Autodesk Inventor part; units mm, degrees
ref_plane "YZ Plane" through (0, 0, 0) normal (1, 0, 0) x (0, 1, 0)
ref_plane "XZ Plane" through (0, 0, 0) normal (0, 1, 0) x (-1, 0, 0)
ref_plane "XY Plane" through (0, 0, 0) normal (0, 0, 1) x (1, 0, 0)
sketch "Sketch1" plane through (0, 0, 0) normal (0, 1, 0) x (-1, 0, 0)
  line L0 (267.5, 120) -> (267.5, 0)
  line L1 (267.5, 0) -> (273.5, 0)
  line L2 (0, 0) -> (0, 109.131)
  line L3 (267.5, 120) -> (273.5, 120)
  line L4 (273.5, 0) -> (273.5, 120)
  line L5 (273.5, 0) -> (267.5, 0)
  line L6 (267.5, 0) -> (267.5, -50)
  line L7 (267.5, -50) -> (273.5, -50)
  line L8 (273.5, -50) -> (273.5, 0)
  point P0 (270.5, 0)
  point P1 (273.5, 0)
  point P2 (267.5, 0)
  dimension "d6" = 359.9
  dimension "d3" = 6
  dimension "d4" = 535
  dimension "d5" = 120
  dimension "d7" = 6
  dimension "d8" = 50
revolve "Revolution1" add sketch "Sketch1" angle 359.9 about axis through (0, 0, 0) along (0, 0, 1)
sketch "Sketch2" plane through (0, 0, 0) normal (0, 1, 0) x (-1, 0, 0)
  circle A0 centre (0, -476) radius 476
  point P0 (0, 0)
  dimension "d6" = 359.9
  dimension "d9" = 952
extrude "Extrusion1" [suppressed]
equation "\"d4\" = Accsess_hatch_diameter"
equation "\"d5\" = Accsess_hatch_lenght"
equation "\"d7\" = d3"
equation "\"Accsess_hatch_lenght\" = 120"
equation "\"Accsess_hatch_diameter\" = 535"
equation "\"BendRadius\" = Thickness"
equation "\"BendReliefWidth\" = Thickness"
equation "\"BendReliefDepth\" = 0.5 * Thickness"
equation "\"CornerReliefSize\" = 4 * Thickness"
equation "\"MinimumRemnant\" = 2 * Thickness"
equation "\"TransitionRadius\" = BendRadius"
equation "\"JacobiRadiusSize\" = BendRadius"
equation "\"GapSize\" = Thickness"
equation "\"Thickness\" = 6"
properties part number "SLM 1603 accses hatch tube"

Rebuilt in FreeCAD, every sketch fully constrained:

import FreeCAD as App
import Part
import Sketcher


def add_polygon(sketch, points):
    """Adds a closed chain of lines whose ends are joined by coincident constraints."""
    first, n = sketch.GeometryCount, len(points)
    for a, b in zip(points, points[1:] + points[:1]):
        sketch.addGeometry(Part.LineSegment(App.Vector(*a, 0), App.Vector(*b, 0)), False)
    for i in range(n):
        sketch.addConstraint(Sketcher.Constraint("Coincident", first + i, 2, first + (i + 1) % n, 1))

doc = App.newDocument("Part")
body = doc.addObject("PartDesign::Body", "Body")

sketch1 = doc.addObject("Sketcher::SketchObject", "Sketch")
body.addObject(sketch1)
sketch1.AttachmentSupport = (doc.XZ_Plane, [""])
sketch1.MapMode = "FlatFace"
add_polygon(sketch1, [(-274, 120), (-268, 120), (-268, -50), (-274, -50)])
sketch1.addConstraint(Sketcher.Constraint("Horizontal", 0))
sketch1.addConstraint(Sketcher.Constraint("Vertical", 1))
sketch1.addConstraint(Sketcher.Constraint("Horizontal", 2))
sketch1.addConstraint(Sketcher.Constraint("Vertical", 3))
sketch1.addConstraint(Sketcher.Constraint("DistanceX", 0, 1, 0, 2, 6.0))
sketch1.addConstraint(Sketcher.Constraint("DistanceY", -1, 1, 0, 2, 120.0))
sketch1.addConstraint(Sketcher.Constraint("DistanceY", 1, 2, -1, 1, 50.0))
sketch1.addConstraint(Sketcher.Constraint("DistanceX", 0, 2, -1, 1, 267.5))
revolution = doc.addObject("PartDesign::Revolution", "Revolution")
body.addObject(revolution)
revolution.Profile = sketch1
revolution.ReferenceAxis = (sketch1, ["V_Axis"])
revolution.Angle = 359.9

doc.recompute()
